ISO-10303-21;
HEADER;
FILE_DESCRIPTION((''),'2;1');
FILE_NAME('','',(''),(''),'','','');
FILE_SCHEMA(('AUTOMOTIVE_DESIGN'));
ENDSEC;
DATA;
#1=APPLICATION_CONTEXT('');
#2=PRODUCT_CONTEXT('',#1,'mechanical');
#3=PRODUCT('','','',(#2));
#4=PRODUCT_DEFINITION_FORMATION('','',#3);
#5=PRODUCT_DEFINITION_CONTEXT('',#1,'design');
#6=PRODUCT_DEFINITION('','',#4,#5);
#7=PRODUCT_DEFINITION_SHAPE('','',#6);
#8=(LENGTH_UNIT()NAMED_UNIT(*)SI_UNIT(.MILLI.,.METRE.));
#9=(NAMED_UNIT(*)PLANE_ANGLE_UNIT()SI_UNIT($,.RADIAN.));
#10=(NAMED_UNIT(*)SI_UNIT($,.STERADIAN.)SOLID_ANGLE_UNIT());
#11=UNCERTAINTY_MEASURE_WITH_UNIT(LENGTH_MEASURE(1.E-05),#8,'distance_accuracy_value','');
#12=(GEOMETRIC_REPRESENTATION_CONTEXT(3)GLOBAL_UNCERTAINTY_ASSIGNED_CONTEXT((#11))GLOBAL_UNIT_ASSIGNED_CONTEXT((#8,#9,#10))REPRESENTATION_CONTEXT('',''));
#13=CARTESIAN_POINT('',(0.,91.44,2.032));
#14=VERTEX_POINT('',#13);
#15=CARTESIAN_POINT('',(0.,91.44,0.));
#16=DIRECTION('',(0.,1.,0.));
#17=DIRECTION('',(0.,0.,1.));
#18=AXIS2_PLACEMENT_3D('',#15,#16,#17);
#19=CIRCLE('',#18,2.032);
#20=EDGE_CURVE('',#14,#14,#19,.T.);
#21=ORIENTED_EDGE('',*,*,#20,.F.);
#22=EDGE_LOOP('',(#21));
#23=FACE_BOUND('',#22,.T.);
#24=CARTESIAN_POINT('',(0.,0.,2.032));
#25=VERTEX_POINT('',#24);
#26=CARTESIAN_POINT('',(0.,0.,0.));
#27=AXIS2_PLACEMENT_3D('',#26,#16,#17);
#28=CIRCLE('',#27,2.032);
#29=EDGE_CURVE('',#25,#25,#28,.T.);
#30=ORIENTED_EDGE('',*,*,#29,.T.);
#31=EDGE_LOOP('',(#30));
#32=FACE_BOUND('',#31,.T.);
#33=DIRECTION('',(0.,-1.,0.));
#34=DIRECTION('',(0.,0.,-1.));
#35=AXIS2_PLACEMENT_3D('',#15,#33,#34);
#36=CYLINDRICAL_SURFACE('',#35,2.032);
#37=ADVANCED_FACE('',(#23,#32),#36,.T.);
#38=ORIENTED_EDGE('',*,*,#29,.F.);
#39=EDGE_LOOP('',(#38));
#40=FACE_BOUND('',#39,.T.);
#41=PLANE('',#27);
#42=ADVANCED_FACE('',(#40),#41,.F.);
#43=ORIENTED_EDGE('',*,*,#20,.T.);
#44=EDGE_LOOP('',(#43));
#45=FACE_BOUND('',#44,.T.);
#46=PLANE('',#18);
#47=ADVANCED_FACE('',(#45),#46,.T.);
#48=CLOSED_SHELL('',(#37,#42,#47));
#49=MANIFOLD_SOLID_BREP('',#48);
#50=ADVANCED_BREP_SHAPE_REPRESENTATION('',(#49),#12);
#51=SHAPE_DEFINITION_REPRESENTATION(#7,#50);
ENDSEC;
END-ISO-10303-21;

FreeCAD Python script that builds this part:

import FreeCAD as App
import Part
import Sketcher
Q = App.Units.Quantity

doc = App.newDocument("Part")
params = doc.addObject("Spreadsheet::Sheet", "Params")
for row, (alias, value) in enumerate([
    ("sketch1_diameter", "0.16 in"),
    ("pad1_length", "3.6 in"),
], start=1):
    params.set(f"A{row}", alias)
    params.set(f"B{row}", "=" + value)
    params.setAlias(f"B{row}", alias)

body = doc.addObject("PartDesign::Body", "Body")

# Sketch on XZ plane
sketch1 = body.newObject("Sketcher::SketchObject", "Sketch")
sketch1.AttachmentSupport = (doc.getObject("XZ_Plane"), [""])
sketch1.MapMode = "FlatFace"
sketch1.addGeometry(Part.Circle(App.Vector(0, 0, 0), App.Vector(0, 0, 1), 2), False)
sketch1.addConstraint(Sketcher.Constraint("Coincident", 0, 3, -1, 1))
sketch1.addConstraint(Sketcher.Constraint("Diameter", 0, Q("0.16 in")))
sketch1.setExpression("Constraints[1]", "Params.sketch1_diameter")
pad1 = body.newObject("PartDesign::Pad", "Pad")
pad1.Profile = sketch1
pad1.setExpression("Length", "Params.pad1_length")
pad1.Reversed = True

doc.recompute()
